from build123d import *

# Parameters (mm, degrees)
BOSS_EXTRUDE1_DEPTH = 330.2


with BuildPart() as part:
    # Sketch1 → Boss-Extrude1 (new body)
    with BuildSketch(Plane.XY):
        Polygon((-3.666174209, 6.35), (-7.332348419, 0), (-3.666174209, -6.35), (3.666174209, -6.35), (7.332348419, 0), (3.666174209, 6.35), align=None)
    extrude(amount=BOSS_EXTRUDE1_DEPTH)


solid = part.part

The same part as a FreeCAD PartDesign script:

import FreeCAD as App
import Part
import Sketcher
Q = App.Units.Quantity


def add_polygon(sketch, points):
    """Adds a closed chain of lines whose ends are joined by coincident constraints."""
    first, n = sketch.GeometryCount, len(points)
    for a, b in zip(points, points[1:] + points[:1]):
        sketch.addGeometry(Part.LineSegment(App.Vector(*a, 0), App.Vector(*b, 0)), False)
    for i in range(n):
        sketch.addConstraint(Sketcher.Constraint("Coincident", first + i, 2, first + (i + 1) % n, 1))

doc = App.newDocument("Part")
body = doc.addObject("PartDesign::Body", "Body")

sketch1 = body.newObject("Sketcher::SketchObject", "Sketch")
sketch1.AttachmentSupport = (doc.getObject("XY_Plane"), [""])
sketch1.MapMode = "FlatFace"
add_polygon(sketch1, [(-3.666174, 6.35), (-7.332348, 0), (-3.666174, -6.35), (3.666174, -6.35), (7.332348, 0), (3.666174, 6.35)])
sketch1.addConstraint([
    Sketcher.Constraint("Horizontal", 2),
    Sketcher.Constraint("Horizontal", 5),
    Sketcher.Constraint("Symmetric", 0, 2, 3, 2, -1, 1),
    Sketcher.Constraint("Symmetric", 1, 2, 4, 2, -1, 1),
    Sketcher.Constraint("PointOnObject", 0, 2, -1),
    Sketcher.Constraint("Parallel", 0, 3),
    Sketcher.Constraint("Vertical", 2, 2, 4, 2),
    Sketcher.Constraint("Angle", 0, Q("-120 deg")),
    Sketcher.Constraint("DistanceY", 2, 2, 4, 2, Q("0.5 in")),
    Sketcher.Constraint("DistanceX", 2, 1, 2, 2, 7.332348),
])
pad1 = body.newObject("PartDesign::Pad", "Pad")
pad1.Profile = sketch1
pad1.Length = Q("13 in")

doc.recompute()
